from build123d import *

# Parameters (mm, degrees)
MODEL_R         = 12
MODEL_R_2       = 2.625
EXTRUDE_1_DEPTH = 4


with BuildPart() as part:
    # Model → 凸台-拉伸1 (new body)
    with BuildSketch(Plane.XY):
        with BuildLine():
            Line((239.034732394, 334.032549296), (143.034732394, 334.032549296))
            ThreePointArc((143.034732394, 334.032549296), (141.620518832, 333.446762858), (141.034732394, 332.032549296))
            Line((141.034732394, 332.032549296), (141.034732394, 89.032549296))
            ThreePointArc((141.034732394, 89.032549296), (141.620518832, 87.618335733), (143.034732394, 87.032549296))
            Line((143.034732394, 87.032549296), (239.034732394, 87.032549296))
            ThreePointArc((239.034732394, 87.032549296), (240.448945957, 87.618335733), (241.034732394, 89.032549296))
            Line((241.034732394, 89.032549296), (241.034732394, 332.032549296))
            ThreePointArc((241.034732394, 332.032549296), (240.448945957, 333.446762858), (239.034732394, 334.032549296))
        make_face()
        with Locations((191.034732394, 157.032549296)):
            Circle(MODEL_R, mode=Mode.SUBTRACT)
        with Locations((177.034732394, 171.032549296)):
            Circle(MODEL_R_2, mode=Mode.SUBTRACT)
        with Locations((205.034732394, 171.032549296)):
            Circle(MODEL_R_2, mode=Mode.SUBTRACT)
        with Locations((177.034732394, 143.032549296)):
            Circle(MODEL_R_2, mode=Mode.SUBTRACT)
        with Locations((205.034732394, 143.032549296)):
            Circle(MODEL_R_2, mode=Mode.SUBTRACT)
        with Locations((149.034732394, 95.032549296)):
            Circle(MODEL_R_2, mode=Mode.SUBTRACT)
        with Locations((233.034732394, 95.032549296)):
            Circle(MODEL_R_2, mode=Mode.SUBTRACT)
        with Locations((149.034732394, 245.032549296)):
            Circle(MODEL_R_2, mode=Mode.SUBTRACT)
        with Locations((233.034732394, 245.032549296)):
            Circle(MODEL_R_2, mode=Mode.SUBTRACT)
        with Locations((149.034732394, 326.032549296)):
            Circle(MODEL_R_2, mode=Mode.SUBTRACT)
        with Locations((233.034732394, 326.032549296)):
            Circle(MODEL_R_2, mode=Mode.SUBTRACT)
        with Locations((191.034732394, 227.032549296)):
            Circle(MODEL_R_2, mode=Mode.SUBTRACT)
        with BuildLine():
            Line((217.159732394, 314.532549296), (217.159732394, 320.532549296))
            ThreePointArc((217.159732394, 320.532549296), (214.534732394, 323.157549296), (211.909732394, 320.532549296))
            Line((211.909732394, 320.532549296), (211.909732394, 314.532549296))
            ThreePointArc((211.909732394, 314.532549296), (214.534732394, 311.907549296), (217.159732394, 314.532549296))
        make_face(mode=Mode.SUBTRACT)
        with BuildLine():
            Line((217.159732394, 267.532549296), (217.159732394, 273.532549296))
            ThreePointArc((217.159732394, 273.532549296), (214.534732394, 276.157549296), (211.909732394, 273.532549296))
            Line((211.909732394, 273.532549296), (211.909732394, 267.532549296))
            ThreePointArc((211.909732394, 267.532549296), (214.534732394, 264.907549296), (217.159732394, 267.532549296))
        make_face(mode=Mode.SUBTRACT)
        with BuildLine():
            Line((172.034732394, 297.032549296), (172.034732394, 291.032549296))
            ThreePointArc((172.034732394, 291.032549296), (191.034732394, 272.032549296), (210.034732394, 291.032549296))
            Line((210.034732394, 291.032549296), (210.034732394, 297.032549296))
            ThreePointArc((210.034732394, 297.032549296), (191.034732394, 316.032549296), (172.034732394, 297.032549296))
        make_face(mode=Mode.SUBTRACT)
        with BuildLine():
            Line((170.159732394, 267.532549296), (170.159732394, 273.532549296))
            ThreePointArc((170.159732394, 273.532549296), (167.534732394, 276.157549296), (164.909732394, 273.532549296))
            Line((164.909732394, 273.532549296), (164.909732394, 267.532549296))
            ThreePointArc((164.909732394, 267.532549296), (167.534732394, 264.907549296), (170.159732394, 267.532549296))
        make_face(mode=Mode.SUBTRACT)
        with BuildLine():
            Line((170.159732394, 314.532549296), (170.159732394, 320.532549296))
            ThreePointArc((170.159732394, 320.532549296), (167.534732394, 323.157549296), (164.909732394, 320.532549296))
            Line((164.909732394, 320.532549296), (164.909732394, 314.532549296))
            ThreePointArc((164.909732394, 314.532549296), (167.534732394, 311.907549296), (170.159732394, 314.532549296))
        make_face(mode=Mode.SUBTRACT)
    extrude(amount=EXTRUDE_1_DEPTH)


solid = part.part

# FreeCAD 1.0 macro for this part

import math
import FreeCAD as App
import Part
import Sketcher
Q = App.Units.Quantity

doc = App.newDocument("Part")
body = doc.addObject("PartDesign::Body", "Body")

sketch1 = body.newObject("Sketcher::SketchObject", "Sketch")
sketch1.AttachmentSupport = (doc.getObject("XY_Plane"), [""])
sketch1.MapMode = "FlatFace"
sketch1.addGeometry([
    Part.LineSegment(App.Vector(239, 334, 0), App.Vector(143, 334, 0)),
    Part.ArcOfCircle(Part.Circle(App.Vector(143, 332, 0), App.Vector(0, 0, 1), 2), math.radians(90), math.radians(180)),
    Part.LineSegment(App.Vector(141, 332, 0), App.Vector(141, 89, 0)),
    Part.ArcOfCircle(Part.Circle(App.Vector(143, 89, 0), App.Vector(0, 0, 1), 2), math.radians(180), math.radians(270)),
    Part.LineSegment(App.Vector(143, 87, 0), App.Vector(239, 87, 0)),
    Part.ArcOfCircle(Part.Circle(App.Vector(239, 89, 0), App.Vector(0, 0, 1), 2), math.radians(-90), math.radians(0)),
    Part.LineSegment(App.Vector(241, 89, 0), App.Vector(241, 332, 0)),
    Part.ArcOfCircle(Part.Circle(App.Vector(239, 332, 0), App.Vector(0, 0, 1), 2), math.radians(0), math.radians(90)),
    Part.Circle(App.Vector(149, 95, 0), App.Vector(0, 0, 1), 2.6),
    Part.Circle(App.Vector(177, 143, 0), App.Vector(0, 0, 1), 2.6),
    Part.Circle(App.Vector(177, 171, 0), App.Vector(0, 0, 1), 2.6),
    Part.Circle(App.Vector(205, 143, 0), App.Vector(0, 0, 1), 2.6),
    Part.Circle(App.Vector(233, 95, 0), App.Vector(0, 0, 1), 2.6),
    Part.Circle(App.Vector(191, 157, 0), App.Vector(0, 0, 1), 12),
    Part.Circle(App.Vector(205, 171, 0), App.Vector(0, 0, 1), 2.6),
    Part.Circle(App.Vector(149, 245, 0), App.Vector(0, 0, 1), 2.6),
    Part.LineSegment(App.Vector(170.2, 273.5, 0), App.Vector(170.2, 267.5, 0)),
    Part.ArcOfCircle(Part.Circle(App.Vector(167.5, 267.5, 0), App.Vector(0, 0, 1), 2.6), math.radians(180), math.radians(360)),
    Part.LineSegment(App.Vector(164.9, 267.5, 0), App.Vector(164.9, 273.5, 0)),
    Part.ArcOfCircle(Part.Circle(App.Vector(167.5, 273.5, 0), App.Vector(0, 0, 1), 2.6), math.radians(0), math.radians(180)),
    Part.Circle(App.Vector(149, 326, 0), App.Vector(0, 0, 1), 2.6),
    Part.LineSegment(App.Vector(170.2, 320.5, 0), App.Vector(170.2, 314.5, 0)),
    Part.ArcOfCircle(Part.Circle(App.Vector(167.5, 314.5, 0), App.Vector(0, 0, 1), 2.6), math.radians(180), math.radians(360)),
    Part.LineSegment(App.Vector(164.9, 314.5, 0), App.Vector(164.9, 320.5, 0)),
    Part.ArcOfCircle(Part.Circle(App.Vector(167.5, 320.5, 0), App.Vector(0, 0, 1), 2.6), math.radians(0), math.radians(180)),
    Part.Circle(App.Vector(191, 227, 0), App.Vector(0, 0, 1), 2.6),
    Part.Circle(App.Vector(233, 245, 0), App.Vector(0, 0, 1), 2.6),
    Part.LineSegment(App.Vector(172, 291, 0), App.Vector(172, 297, 0)),
    Part.ArcOfCircle(Part.Circle(App.Vector(191, 297, 0), App.Vector(0, 0, 1), 19), math.radians(0), math.radians(180)),
    Part.LineSegment(App.Vector(210, 297, 0), App.Vector(210, 291, 0)),
    Part.ArcOfCircle(Part.Circle(App.Vector(191, 291, 0), App.Vector(0, 0, 1), 19), math.radians(180), math.radians(360)),
    Part.LineSegment(App.Vector(217.2, 273.5, 0), App.Vector(217.2, 267.5, 0)),
    Part.ArcOfCircle(Part.Circle(App.Vector(214.5, 267.5, 0), App.Vector(0, 0, 1), 2.6), math.radians(180), math.radians(360)),
    Part.LineSegment(App.Vector(211.9, 267.5, 0), App.Vector(211.9, 273.5, 0)),
    Part.ArcOfCircle(Part.Circle(App.Vector(214.5, 273.5, 0), App.Vector(0, 0, 1), 2.6), math.radians(0), math.radians(180)),
    Part.LineSegment(App.Vector(217.2, 320.5, 0), App.Vector(217.2, 314.5, 0)),
    Part.ArcOfCircle(Part.Circle(App.Vector(214.5, 314.5, 0), App.Vector(0, 0, 1), 2.6), math.radians(180), math.radians(360)),
    Part.LineSegment(App.Vector(211.9, 314.5, 0), App.Vector(211.9, 320.5, 0)),
    Part.ArcOfCircle(Part.Circle(App.Vector(214.5, 320.5, 0), App.Vector(0, 0, 1), 2.6), math.radians(0), math.radians(180)),
    Part.Circle(App.Vector(233, 326, 0), App.Vector(0, 0, 1), 2.6),
], False)
sketch1.addConstraint([
    Sketcher.Constraint("Tangent", 0, 2, 1, 1),
    Sketcher.Constraint("Tangent", 1, 2, 2, 1),
    Sketcher.Constraint("Tangent", 2, 2, 3, 1),
    Sketcher.Constraint("Tangent", 3, 2, 4, 1),
    Sketcher.Constraint("Tangent", 4, 2, 5, 1),
    Sketcher.Constraint("Tangent", 5, 2, 6, 1),
    Sketcher.Constraint("Tangent", 6, 2, 7, 1),
    Sketcher.Constraint("Tangent", 7, 2, 0, 1),
    Sketcher.Constraint("Tangent", 16, 2, 17, 2),
    Sketcher.Constraint("Tangent", 17, 1, 18, 1),
    Sketcher.Constraint("Tangent", 18, 2, 19, 2),
    Sketcher.Constraint("Tangent", 19, 1, 16, 1),
    Sketcher.Constraint("Tangent", 21, 2, 22, 2),
    Sketcher.Constraint("Tangent", 22, 1, 23, 1),
    Sketcher.Constraint("Tangent", 23, 2, 24, 2),
    Sketcher.Constraint("Tangent", 24, 1, 21, 1),
    Sketcher.Constraint("Tangent", 27, 2, 28, 2),
    Sketcher.Constraint("Tangent", 28, 1, 29, 1),
    Sketcher.Constraint("Tangent", 29, 2, 30, 2),
    Sketcher.Constraint("Tangent", 30, 1, 27, 1),
    Sketcher.Constraint("Tangent", 31, 2, 32, 2),
    Sketcher.Constraint("Tangent", 32, 1, 33, 1),
    Sketcher.Constraint("Tangent", 33, 2, 34, 2),
    Sketcher.Constraint("Tangent", 34, 1, 31, 1),
    Sketcher.Constraint("Tangent", 35, 2, 36, 2),
    Sketcher.Constraint("Tangent", 36, 1, 37, 1),
    Sketcher.Constraint("Tangent", 37, 2, 38, 2),
    Sketcher.Constraint("Tangent", 38, 1, 35, 1),
    Sketcher.Constraint("Horizontal", 0),
    Sketcher.Constraint("Vertical", 2),
    Sketcher.Constraint("Horizontal", 4),
    Sketcher.Constraint("Vertical", 6),
    Sketcher.Constraint("Vertical", 16),
    Sketcher.Constraint("Vertical", 18),
    Sketcher.Constraint("Vertical", 21),
    Sketcher.Constraint("Vertical", 23),
    Sketcher.Constraint("Vertical", 27),
    Sketcher.Constraint("Vertical", 29),
    Sketcher.Constraint("Vertical", 31),
    Sketcher.Constraint("Vertical", 33),
    Sketcher.Constraint("Vertical", 35),
    Sketcher.Constraint("Vertical", 37),
    Sketcher.Constraint("Equal", 1, 3),
    Sketcher.Constraint("Equal", 3, 5),
    Sketcher.Constraint("Equal", 5, 7),
    Sketcher.Constraint("Equal", 8, 9),
    Sketcher.Constraint("Equal", 9, 10),
    Sketcher.Constraint("Equal", 10, 11),
    Sketcher.Constraint("Equal", 11, 12),
    Sketcher.Constraint("Equal", 12, 14),
    Sketcher.Constraint("Equal", 14, 15),
    Sketcher.Constraint("Equal", 15, 17),
    Sketcher.Constraint("Equal", 19, 20),
    Sketcher.Constraint("Equal", 20, 22),
    Sketcher.Constraint("Equal", 24, 25),
    Sketcher.Constraint("Equal", 25, 26),
    Sketcher.Constraint("Equal", 26, 32),
    Sketcher.Constraint("Equal", 34, 36),
    Sketcher.Constraint("Equal", 38, 39),
    Sketcher.Constraint("Horizontal", 9, 3, 11, 3),
    Sketcher.Constraint("Horizontal", 8, 3, 12, 3),
    Sketcher.Constraint("Horizontal", 10, 3, 14, 3),
    Sketcher.Constraint("Horizontal", 15, 3, 26, 3),
    Sketcher.Constraint("Horizontal", 17, 3, 32, 3),
    Sketcher.Constraint("Horizontal", 19, 3, 34, 3),
    Sketcher.Constraint("Horizontal", 22, 3, 36, 3),
    Sketcher.Constraint("Horizontal", 24, 3, 38, 3),
    Sketcher.Constraint("Horizontal", 20, 3, 39, 3),
    Sketcher.Constraint("Vertical", 9, 3, 10, 3),
    Sketcher.Constraint("Vertical", 11, 3, 14, 3),
    Sketcher.Constraint("Vertical", 8, 3, 15, 3),
    Sketcher.Constraint("Vertical", 15, 3, 20, 3),
    Sketcher.Constraint("Vertical", 19, 3, 22, 3),
    Sketcher.Constraint("Vertical", 13, 3, 25, 3),
    Sketcher.Constraint("Vertical", 12, 3, 26, 3),
    Sketcher.Constraint("Vertical", 25, 3, 28, 3),
    Sketcher.Constraint("Vertical", 34, 3, 36, 3),
    Sketcher.Constraint("Vertical", 26, 3, 39, 3),
    Sketcher.Constraint("Equal", 18, 21),
    Sketcher.Constraint("Equal", 23, 27),
    Sketcher.Constraint("Diameter", 13, Q("24 mm")),
    Sketcher.Constraint("Radius", 1, Q("2 mm")),
    Sketcher.Constraint("Radius", 28, Q("19 mm")),
    Sketcher.Constraint("Diameter", 8, Q("5.25 mm")),
    Sketcher.Constraint("DistanceX", 0, 2, 0, 1, Q("96 mm")),
    Sketcher.Constraint("DistanceY", 2, 2, 2, 1, Q("243 mm")),
    Sketcher.Constraint("DistanceY", 16, 2, 16, 1, Q("6 mm")),
    Sketcher.Constraint("DistanceX", 3, 3, 8, 3, Q("6 mm")),
    Sketcher.Constraint("DistanceY", 3, 3, 8, 3, Q("6 mm")),
    Sketcher.Constraint("DistanceX", 8, 3, 9, 3, Q("28 mm")),
    Sketcher.Constraint("DistanceY", 8, 3, 9, 3, Q("48 mm")),
    Sketcher.Constraint("DistanceY", 9, 3, 10, 3, Q("28 mm")),
    Sketcher.Constraint("DistanceX", 9, 3, 11, 3, Q("28 mm")),
    Sketcher.Constraint("DistanceX", 12, 3, 5, 3, Q("6 mm")),
    Sketcher.Constraint("DistanceX", 9, 3, 13, 3, Q("14 mm")),
    Sketcher.Constraint("DistanceY", 9, 3, 13, 3, Q("14 mm")),
    Sketcher.Constraint("DistanceY", 10, 3, 15, 3, Q("74 mm")),
    Sketcher.Constraint("DistanceY", 20, 3, 1, 3, Q("6 mm")),
    Sketcher.Constraint("DistanceY", 19, 3, 22, 3, Q("41 mm")),
    Sketcher.Constraint("DistanceY", 25, 3, 15, 3, Q("18 mm")),
    Sketcher.Constraint("DistanceY", 28, 3, 20, 3, Q("29 mm")),
    Sketcher.Constraint("DistanceX", 17, 3, 32, 3, Q("47 mm")),
    Sketcher.Constraint("DistanceX", 15, 3, 17, 3, Q("18.5 mm")),
    Sketcher.Constraint("DistanceY", 15, 3, 17, 3, Q("22.5 mm")),
    Sketcher.Constraint("DistanceY", -1, 1, 1, 3, Q("332.032549 mm")),
    Sketcher.Constraint("DistanceX", -1, 1, 1, 3, Q("143.034732 mm")),
])
pad1 = body.newObject("PartDesign::Pad", "Pad")
pad1.Profile = sketch1
pad1.Length = 4

doc.recompute()
